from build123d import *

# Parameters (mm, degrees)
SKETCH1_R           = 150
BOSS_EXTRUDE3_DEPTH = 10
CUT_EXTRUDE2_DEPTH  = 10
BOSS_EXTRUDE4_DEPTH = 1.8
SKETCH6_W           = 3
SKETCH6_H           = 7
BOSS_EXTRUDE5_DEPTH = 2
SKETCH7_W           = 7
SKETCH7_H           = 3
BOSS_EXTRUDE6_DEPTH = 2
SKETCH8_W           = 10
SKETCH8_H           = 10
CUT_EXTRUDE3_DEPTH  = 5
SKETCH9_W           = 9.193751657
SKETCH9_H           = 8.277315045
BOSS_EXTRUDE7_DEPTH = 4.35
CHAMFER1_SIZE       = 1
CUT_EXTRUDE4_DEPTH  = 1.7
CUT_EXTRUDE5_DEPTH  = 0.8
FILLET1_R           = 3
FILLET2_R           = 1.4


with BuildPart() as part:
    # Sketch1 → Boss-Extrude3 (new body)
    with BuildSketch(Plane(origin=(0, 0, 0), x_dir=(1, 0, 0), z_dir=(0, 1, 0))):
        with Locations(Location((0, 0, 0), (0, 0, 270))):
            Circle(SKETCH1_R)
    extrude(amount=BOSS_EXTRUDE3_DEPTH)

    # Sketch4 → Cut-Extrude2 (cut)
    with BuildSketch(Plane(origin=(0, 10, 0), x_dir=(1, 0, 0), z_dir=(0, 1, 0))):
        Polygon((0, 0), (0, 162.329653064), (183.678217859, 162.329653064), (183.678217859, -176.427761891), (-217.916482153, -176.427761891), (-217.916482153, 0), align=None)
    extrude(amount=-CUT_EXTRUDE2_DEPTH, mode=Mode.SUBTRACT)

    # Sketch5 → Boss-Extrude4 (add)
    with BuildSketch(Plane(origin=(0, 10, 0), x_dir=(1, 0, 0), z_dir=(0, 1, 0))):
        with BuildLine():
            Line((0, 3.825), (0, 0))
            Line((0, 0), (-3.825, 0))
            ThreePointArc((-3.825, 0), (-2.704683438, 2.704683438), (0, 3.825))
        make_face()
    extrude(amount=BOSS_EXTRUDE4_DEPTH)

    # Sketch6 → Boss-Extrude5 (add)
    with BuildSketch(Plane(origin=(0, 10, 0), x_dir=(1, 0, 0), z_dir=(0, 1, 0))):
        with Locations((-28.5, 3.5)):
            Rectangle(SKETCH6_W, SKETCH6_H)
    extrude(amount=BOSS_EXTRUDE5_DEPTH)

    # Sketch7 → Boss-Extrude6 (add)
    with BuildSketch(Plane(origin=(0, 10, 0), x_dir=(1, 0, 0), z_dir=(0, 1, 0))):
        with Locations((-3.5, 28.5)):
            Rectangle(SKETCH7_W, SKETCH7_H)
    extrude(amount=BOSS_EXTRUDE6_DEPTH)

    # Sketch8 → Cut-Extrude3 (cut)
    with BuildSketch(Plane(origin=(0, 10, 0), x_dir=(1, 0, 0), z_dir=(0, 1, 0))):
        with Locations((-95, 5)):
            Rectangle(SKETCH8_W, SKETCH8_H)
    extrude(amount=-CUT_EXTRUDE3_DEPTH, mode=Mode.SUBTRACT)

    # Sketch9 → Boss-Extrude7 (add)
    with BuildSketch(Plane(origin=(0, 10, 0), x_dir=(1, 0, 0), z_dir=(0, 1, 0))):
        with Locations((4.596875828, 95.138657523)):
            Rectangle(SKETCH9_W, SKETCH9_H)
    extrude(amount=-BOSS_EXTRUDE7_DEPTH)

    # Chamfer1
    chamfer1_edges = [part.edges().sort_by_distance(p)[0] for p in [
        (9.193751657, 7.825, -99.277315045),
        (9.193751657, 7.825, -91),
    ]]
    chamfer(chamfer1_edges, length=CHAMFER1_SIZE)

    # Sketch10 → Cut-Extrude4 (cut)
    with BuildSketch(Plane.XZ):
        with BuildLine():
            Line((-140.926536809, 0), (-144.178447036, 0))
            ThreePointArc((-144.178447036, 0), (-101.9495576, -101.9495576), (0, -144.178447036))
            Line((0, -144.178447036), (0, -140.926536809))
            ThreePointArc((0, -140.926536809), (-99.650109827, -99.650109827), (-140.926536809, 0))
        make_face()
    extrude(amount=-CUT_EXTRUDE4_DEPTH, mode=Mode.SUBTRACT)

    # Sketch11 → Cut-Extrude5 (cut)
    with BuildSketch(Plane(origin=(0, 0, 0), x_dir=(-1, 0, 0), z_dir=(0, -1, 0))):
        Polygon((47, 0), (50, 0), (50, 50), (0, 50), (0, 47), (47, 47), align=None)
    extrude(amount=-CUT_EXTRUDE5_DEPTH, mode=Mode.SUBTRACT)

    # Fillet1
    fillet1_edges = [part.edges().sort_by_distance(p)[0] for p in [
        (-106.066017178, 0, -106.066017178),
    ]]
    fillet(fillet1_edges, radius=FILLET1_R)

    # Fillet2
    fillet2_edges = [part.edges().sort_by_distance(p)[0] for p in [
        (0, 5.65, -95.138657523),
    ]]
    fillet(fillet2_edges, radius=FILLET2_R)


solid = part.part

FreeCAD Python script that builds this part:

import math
import FreeCAD as App
import Part
import Sketcher
Q = App.Units.Quantity


def edges_at(feature, points):
    """Names of the edges that pass closest to the given points."""
    edges = feature.Shape.Edges
    near = lambda p: min(range(len(edges)), key=lambda i: edges[i].distToShape(Part.Vertex(*p))[0])
    return sorted({f"Edge{near(p) + 1}" for p in points})

doc = App.newDocument("Part")
body = doc.addObject("PartDesign::Body", "Body")

# Sketch on XZ plane
sketch1 = body.newObject("Sketcher::SketchObject", "Sketch")
sketch1.AttachmentSupport = (doc.getObject("XZ_Plane"), [""])
sketch1.MapMode = "FlatFace"
sketch1.addGeometry(Part.Circle(App.Vector(0, 0, 0), App.Vector(0, 0, 1), 150), False)
sketch1.addConstraint(Sketcher.Constraint("Coincident", 0, 3, -1, 1))
sketch1.addConstraint(Sketcher.Constraint("Diameter", 0, Q("300 mm")))
pad1 = body.newObject("PartDesign::Pad", "Pad")
pad1.Profile = sketch1
pad1.Length = 10
pad1.Reversed = True

# Sketch on XZ plane
sketch2 = body.newObject("Sketcher::SketchObject", "Sketch001")
sketch2.AttachmentSupport = (doc.getObject("XZ_Plane"), [""])
sketch2.MapMode = "FlatFace"
sketch2.AttachmentOffset = App.Placement(App.Vector(0, 0, -10), App.Rotation())
sketch2.addGeometry(Part.LineSegment(App.Vector(0, -162, 0), App.Vector(0, 0, 0)), False)
sketch2.addGeometry(Part.LineSegment(App.Vector(0, 0, 0), App.Vector(-218, 0, 0)), False)
sketch2.addGeometry(Part.LineSegment(App.Vector(-218, 0, 0), App.Vector(-218, 176, 0)), False)
sketch2.addGeometry(Part.LineSegment(App.Vector(-218, 176, 0), App.Vector(184, 176, 0)), False)
sketch2.addGeometry(Part.LineSegment(App.Vector(184, 176, 0), App.Vector(184, -162, 0)), False)
sketch2.addGeometry(Part.LineSegment(App.Vector(184, -162, 0), App.Vector(0, -162, 0)), False)
sketch2.addConstraint(Sketcher.Constraint("Coincident", 0, 2, 1, 1))
sketch2.addConstraint(Sketcher.Constraint("Coincident", 1, 2, 2, 1))
sketch2.addConstraint(Sketcher.Constraint("Coincident", 2, 2, 3, 1))
sketch2.addConstraint(Sketcher.Constraint("Coincident", 3, 2, 4, 1))
sketch2.addConstraint(Sketcher.Constraint("Coincident", 4, 2, 5, 1))
sketch2.addConstraint(Sketcher.Constraint("Coincident", 5, 2, 0, 1))
sketch2.addConstraint(Sketcher.Constraint("Vertical", 0))
sketch2.addConstraint(Sketcher.Constraint("Horizontal", 1))
sketch2.addConstraint(Sketcher.Constraint("Vertical", 2))
sketch2.addConstraint(Sketcher.Constraint("Horizontal", 3))
sketch2.addConstraint(Sketcher.Constraint("Vertical", 4))
sketch2.addConstraint(Sketcher.Constraint("Horizontal", 5))
sketch2.addConstraint(Sketcher.Constraint("Coincident", 0, 2, -1, 1))
sketch2.addConstraint(Sketcher.Constraint("DistanceX", 3, 1, 3, 2, Q("401.5947 mm")))
sketch2.addConstraint(Sketcher.Constraint("DistanceY", 2, 1, 2, 2, Q("176.427762 mm")))
sketch2.addConstraint(Sketcher.Constraint("DistanceX", 1, 2, 1, 1, Q("217.916482 mm")))
sketch2.addConstraint(Sketcher.Constraint("DistanceY", 0, 1, 0, 2, Q("162.329653 mm")))
pocket1 = body.newObject("PartDesign::Pocket", "Pocket")
pocket1.Profile = sketch2
pocket1.Length = 10
pocket1.Reversed = True

# Sketch on XZ plane
sketch3 = body.newObject("Sketcher::SketchObject", "Sketch002")
sketch3.AttachmentSupport = (doc.getObject("XZ_Plane"), [""])
sketch3.MapMode = "FlatFace"
sketch3.AttachmentOffset = App.Placement(App.Vector(0, 0, -10), App.Rotation())
sketch3.addGeometry(Part.LineSegment(App.Vector(0, 0, 0), App.Vector(0, -3.8, 0)), False)
sketch3.addGeometry(Part.ArcOfCircle(Part.Circle(App.Vector(0, 0, 0), App.Vector(0, 0, 1), 3.8), math.radians(180), math.radians(270)), False)
sketch3.addGeometry(Part.LineSegment(App.Vector(-3.8, 0, 0), App.Vector(0, 0, 0)), False)
sketch3.addConstraint(Sketcher.Constraint("Coincident", 0, 2, 1, 2))
sketch3.addConstraint(Sketcher.Constraint("Coincident", 1, 1, 2, 1))
sketch3.addConstraint(Sketcher.Constraint("Coincident", 2, 2, 0, 1))
sketch3.addConstraint(Sketcher.Constraint("Vertical", 0))
sketch3.addConstraint(Sketcher.Constraint("Horizontal", 2))
sketch3.addConstraint(Sketcher.Constraint("Coincident", 1, 3, -1, 1))
sketch3.addConstraint(Sketcher.Constraint("Coincident", 2, 2, -1, 1))
sketch3.addConstraint(Sketcher.Constraint("Radius", 1, Q("3.825 mm")))
pad2 = body.newObject("PartDesign::Pad", "Pad001")
pad2.Profile = sketch3
pad2.Length = 1.8
pad2.Reversed = True

# Sketch on XZ plane
sketch4 = body.newObject("Sketcher::SketchObject", "Sketch003")
sketch4.AttachmentSupport = (doc.getObject("XZ_Plane"), [""])
sketch4.MapMode = "FlatFace"
sketch4.AttachmentOffset = App.Placement(App.Vector(0, 0, -10), App.Rotation())
sketch4.addGeometry(Part.LineSegment(App.Vector(-30, -7, 0), App.Vector(-30, 0, 0)), False)
sketch4.addGeometry(Part.LineSegment(App.Vector(-30, 0, 0), App.Vector(-27, 0, 0)), False)
sketch4.addGeometry(Part.LineSegment(App.Vector(-27, 0, 0), App.Vector(-27, -7, 0)), False)
sketch4.addGeometry(Part.LineSegment(App.Vector(-27, -7, 0), App.Vector(-30, -7, 0)), False)
sketch4.addConstraint(Sketcher.Constraint("Coincident", 0, 2, 1, 1))
sketch4.addConstraint(Sketcher.Constraint("Coincident", 1, 2, 2, 1))
sketch4.addConstraint(Sketcher.Constraint("Coincident", 2, 2, 3, 1))
sketch4.addConstraint(Sketcher.Constraint("Coincident", 3, 2, 0, 1))
sketch4.addConstraint(Sketcher.Constraint("Vertical", 0))
sketch4.addConstraint(Sketcher.Constraint("Horizontal", 1))
sketch4.addConstraint(Sketcher.Constraint("Vertical", 2))
sketch4.addConstraint(Sketcher.Constraint("Horizontal", 3))
sketch4.addConstraint(Sketcher.Constraint("PointOnObject", 0, 2, -1))
sketch4.addConstraint(Sketcher.Constraint("DistanceX", 1, 1, 1, 2, Q("3 mm")))
sketch4.addConstraint(Sketcher.Constraint("DistanceY", 0, 1, 0, 2, Q("7 mm")))
sketch4.addConstraint(Sketcher.Constraint("DistanceX", 0, 2, -1, 1, Q("30 mm")))
pad3 = body.newObject("PartDesign::Pad", "Pad002")
pad3.Profile = sketch4
pad3.Length = 2
pad3.Reversed = True

# Sketch on XZ plane
sketch5 = body.newObject("Sketcher::SketchObject", "Sketch004")
sketch5.AttachmentSupport = (doc.getObject("XZ_Plane"), [""])
sketch5.MapMode = "FlatFace"
sketch5.AttachmentOffset = App.Placement(App.Vector(0, 0, -10), App.Rotation())
sketch5.addGeometry(Part.LineSegment(App.Vector(-7, -30, 0), App.Vector(-7, -27, 0)), False)
sketch5.addGeometry(Part.LineSegment(App.Vector(-7, -27, 0), App.Vector(0, -27, 0)), False)
sketch5.addGeometry(Part.LineSegment(App.Vector(0, -27, 0), App.Vector(0, -30, 0)), False)
sketch5.addGeometry(Part.LineSegment(App.Vector(0, -30, 0), App.Vector(-7, -30, 0)), False)
sketch5.addConstraint(Sketcher.Constraint("Coincident", 0, 2, 1, 1))
sketch5.addConstraint(Sketcher.Constraint("Coincident", 1, 2, 2, 1))
sketch5.addConstraint(Sketcher.Constraint("Coincident", 2, 2, 3, 1))
sketch5.addConstraint(Sketcher.Constraint("Coincident", 3, 2, 0, 1))
sketch5.addConstraint(Sketcher.Constraint("Vertical", 0))
sketch5.addConstraint(Sketcher.Constraint("Horizontal", 1))
sketch5.addConstraint(Sketcher.Constraint("Vertical", 2))
sketch5.addConstraint(Sketcher.Constraint("Horizontal", 3))
sketch5.addConstraint(Sketcher.Constraint("PointOnObject", 1, 2, -2))
sketch5.addConstraint(Sketcher.Constraint("DistanceX", 1, 1, 1, 2, Q("7 mm")))
sketch5.addConstraint(Sketcher.Constraint("DistanceY", 0, 1, 0, 2, Q("3 mm")))
sketch5.addConstraint(Sketcher.Constraint("DistanceY", 0, 2, -1, 1, Q("27 mm")))
pad4 = body.newObject("PartDesign::Pad", "Pad003")
pad4.Profile = sketch5
pad4.Length = 2
pad4.Reversed = True

# Sketch on XZ plane
sketch6 = body.newObject("Sketcher::SketchObject", "Sketch005")
sketch6.AttachmentSupport = (doc.getObject("XZ_Plane"), [""])
sketch6.MapMode = "FlatFace"
sketch6.AttachmentOffset = App.Placement(App.Vector(0, 0, -10), App.Rotation())
sketch6.addGeometry(Part.LineSegment(App.Vector(-100, -10, 0), App.Vector(-100, 0, 0)), False)
sketch6.addGeometry(Part.LineSegment(App.Vector(-100, 0, 0), App.Vector(-90, 0, 0)), False)
sketch6.addGeometry(Part.LineSegment(App.Vector(-90, 0, 0), App.Vector(-90, -10, 0)), False)
sketch6.addGeometry(Part.LineSegment(App.Vector(-90, -10, 0), App.Vector(-100, -10, 0)), False)
sketch6.addConstraint(Sketcher.Constraint("Coincident", 0, 2, 1, 1))
sketch6.addConstraint(Sketcher.Constraint("Coincident", 1, 2, 2, 1))
sketch6.addConstraint(Sketcher.Constraint("Coincident", 2, 2, 3, 1))
sketch6.addConstraint(Sketcher.Constraint("Coincident", 3, 2, 0, 1))
sketch6.addConstraint(Sketcher.Constraint("Vertical", 0))
sketch6.addConstraint(Sketcher.Constraint("Horizontal", 1))
sketch6.addConstraint(Sketcher.Constraint("Vertical", 2))
sketch6.addConstraint(Sketcher.Constraint("Horizontal", 3))
sketch6.addConstraint(Sketcher.Constraint("PointOnObject", 0, 2, -1))
sketch6.addConstraint(Sketcher.Constraint("Equal", 3, 0))
sketch6.addConstraint(Sketcher.Constraint("DistanceX", 1, 1, 1, 2, Q("10 mm")))
sketch6.addConstraint(Sketcher.Constraint("DistanceX", 0, 2, -1, 1, Q("100 mm")))
pocket2 = body.newObject("PartDesign::Pocket", "Pocket001")
pocket2.Profile = sketch6
pocket2.Length = 5
pocket2.Reversed = True

# Sketch on XZ plane
sketch7 = body.newObject("Sketcher::SketchObject", "Sketch006")
sketch7.AttachmentSupport = (doc.getObject("XZ_Plane"), [""])
sketch7.MapMode = "FlatFace"
sketch7.AttachmentOffset = App.Placement(App.Vector(0, 0, -10), App.Rotation())
sketch7.addGeometry(Part.LineSegment(App.Vector(0, -99, 0), App.Vector(0, -91, 0)), False)
sketch7.addGeometry(Part.LineSegment(App.Vector(0, -91, 0), App.Vector(9, -91, 0)), False)
sketch7.addGeometry(Part.LineSegment(App.Vector(9, -91, 0), App.Vector(9, -99, 0)), False)
sketch7.addGeometry(Part.LineSegment(App.Vector(9, -99, 0), App.Vector(0, -99, 0)), False)
sketch7.addConstraint(Sketcher.Constraint("Coincident", 0, 2, 1, 1))
sketch7.addConstraint(Sketcher.Constraint("Coincident", 1, 2, 2, 1))
sketch7.addConstraint(Sketcher.Constraint("Coincident", 2, 2, 3, 1))
sketch7.addConstraint(Sketcher.Constraint("Coincident", 3, 2, 0, 1))
sketch7.addConstraint(Sketcher.Constraint("Vertical", 0))
sketch7.addConstraint(Sketcher.Constraint("Horizontal", 1))
sketch7.addConstraint(Sketcher.Constraint("Vertical", 2))
sketch7.addConstraint(Sketcher.Constraint("Horizontal", 3))
sketch7.addConstraint(Sketcher.Constraint("PointOnObject", 0, 2, -2))
sketch7.addConstraint(Sketcher.Constraint("DistanceY", 0, 2, -1, 1, Q("91 mm")))
sketch7.addConstraint(Sketcher.Constraint("DistanceX", 1, 1, 1, 2, Q("9.193752 mm")))
sketch7.addConstraint(Sketcher.Constraint("DistanceY", 0, 1, 0, 2, Q("8.277315 mm")))
pad5 = body.newObject("PartDesign::Pad", "Pad004")
pad5.Profile = sketch7
pad5.Length = 4.35
doc.recompute()

chamfer = body.newObject("PartDesign::Chamfer", "Chamfer")
chamfer.Base = (pad5, edges_at(pad5, [(9.194, 7.825, -99.277), (9.194, 7.825, -91)]))
chamfer.Size = 1

# Sketch on XZ plane
sketch8 = body.newObject("Sketcher::SketchObject", "Sketch007")
sketch8.AttachmentSupport = (doc.getObject("XZ_Plane"), [""])
sketch8.MapMode = "FlatFace"
sketch8.addGeometry(Part.LineSegment(App.Vector(-140.9, 0, 0), App.Vector(-144.2, 0, 0)), False)
sketch8.addGeometry(Part.ArcOfCircle(Part.Circle(App.Vector(0, 0, 0), App.Vector(0, 0, 1), 144.2), math.radians(180), math.radians(270)), False)
sketch8.addGeometry(Part.LineSegment(App.Vector(0, -144.2, 0), App.Vector(0, -140.9, 0)), False)
sketch8.addGeometry(Part.ArcOfCircle(Part.Circle(App.Vector(0, 0, 0), App.Vector(0, 0, 1), 140.9), math.radians(180), math.radians(270)), False)
sketch8.addConstraint(Sketcher.Constraint("Coincident", 0, 2, 1, 1))
sketch8.addConstraint(Sketcher.Constraint("Coincident", 1, 2, 2, 1))
sketch8.addConstraint(Sketcher.Constraint("Coincident", 2, 2, 3, 2))
sketch8.addConstraint(Sketcher.Constraint("Coincident", 3, 1, 0, 1))
sketch8.addConstraint(Sketcher.Constraint("Horizontal", 0))
sketch8.addConstraint(Sketcher.Constraint("Vertical", 2))
sketch8.addConstraint(Sketcher.Constraint("Coincident", 1, 3, -1, 1))
sketch8.addConstraint(Sketcher.Constraint("Coincident", 3, 3, -1, 1))
sketch8.addConstraint(Sketcher.Constraint("PointOnObject", 0, 2, -1))
sketch8.addConstraint(Sketcher.Constraint("PointOnObject", 1, 2, -2))
sketch8.addConstraint(Sketcher.Constraint("Radius", 1, Q("144.178447 mm")))
sketch8.addConstraint(Sketcher.Constraint("Radius", 3, Q("140.926537 mm")))
pocket3 = body.newObject("PartDesign::Pocket", "Pocket002")
pocket3.Profile = sketch8
pocket3.Length = 1.7

# Sketch on XZ plane
sketch9 = body.newObject("Sketcher::SketchObject", "Sketch008")
sketch9.AttachmentSupport = (doc.getObject("XZ_Plane"), [""])
sketch9.MapMode = "FlatFace"
sketch9.addGeometry(Part.LineSegment(App.Vector(-47, 0, 0), App.Vector(-50, 0, 0)), False)
sketch9.addGeometry(Part.LineSegment(App.Vector(-50, 0, 0), App.Vector(-50, -50, 0)), False)
sketch9.addGeometry(Part.LineSegment(App.Vector(-50, -50, 0), App.Vector(0, -50, 0)), False)
sketch9.addGeometry(Part.LineSegment(App.Vector(0, -50, 0), App.Vector(0, -47, 0)), False)
sketch9.addGeometry(Part.LineSegment(App.Vector(0, -47, 0), App.Vector(-47, -47, 0)), False)
sketch9.addGeometry(Part.LineSegment(App.Vector(-47, -47, 0), App.Vector(-47, 0, 0)), False)
sketch9.addConstraint(Sketcher.Constraint("Coincident", 0, 2, 1, 1))
sketch9.addConstraint(Sketcher.Constraint("Coincident", 1, 2, 2, 1))
sketch9.addConstraint(Sketcher.Constraint("Coincident", 2, 2, 3, 1))
sketch9.addConstraint(Sketcher.Constraint("Coincident", 3, 2, 4, 1))
sketch9.addConstraint(Sketcher.Constraint("Coincident", 4, 2, 5, 1))
sketch9.addConstraint(Sketcher.Constraint("Coincident", 5, 2, 0, 1))
sketch9.addConstraint(Sketcher.Constraint("Horizontal", 0))
sketch9.addConstraint(Sketcher.Constraint("Vertical", 1))
sketch9.addConstraint(Sketcher.Constraint("Horizontal", 2))
sketch9.addConstraint(Sketcher.Constraint("Vertical", 3))
sketch9.addConstraint(Sketcher.Constraint("Horizontal", 4))
sketch9.addConstraint(Sketcher.Constraint("Vertical", 5))
sketch9.addConstraint(Sketcher.Constraint("PointOnObject", 0, 2, -1))
sketch9.addConstraint(Sketcher.Constraint("PointOnObject", 2, 2, -2))
sketch9.addConstraint(Sketcher.Constraint("Equal", 2, 1))
sketch9.addConstraint(Sketcher.Constraint("Equal", 0, 3))
sketch9.addConstraint(Sketcher.Constraint("DistanceX", 0, 2, 0, 1, Q("3 mm")))
sketch9.addConstraint(Sketcher.Constraint("DistanceX", 2, 1, 2, 2, Q("50 mm")))
pocket4 = body.newObject("PartDesign::Pocket", "Pocket003")
pocket4.Profile = sketch9
pocket4.Length = 0.8
doc.recompute()

fillet = body.newObject("PartDesign::Fillet", "Fillet")
fillet.Base = (pocket4, edges_at(pocket4, [(-106.066, 0, -106.066)]))
fillet.Radius = 3
doc.recompute()

fillet2 = body.newObject("PartDesign::Fillet", "Fillet001")
fillet2.Base = (fillet, edges_at(fillet, [(0, 5.65, -95.139)]))
fillet2.Radius = 1.4

doc.recompute()
